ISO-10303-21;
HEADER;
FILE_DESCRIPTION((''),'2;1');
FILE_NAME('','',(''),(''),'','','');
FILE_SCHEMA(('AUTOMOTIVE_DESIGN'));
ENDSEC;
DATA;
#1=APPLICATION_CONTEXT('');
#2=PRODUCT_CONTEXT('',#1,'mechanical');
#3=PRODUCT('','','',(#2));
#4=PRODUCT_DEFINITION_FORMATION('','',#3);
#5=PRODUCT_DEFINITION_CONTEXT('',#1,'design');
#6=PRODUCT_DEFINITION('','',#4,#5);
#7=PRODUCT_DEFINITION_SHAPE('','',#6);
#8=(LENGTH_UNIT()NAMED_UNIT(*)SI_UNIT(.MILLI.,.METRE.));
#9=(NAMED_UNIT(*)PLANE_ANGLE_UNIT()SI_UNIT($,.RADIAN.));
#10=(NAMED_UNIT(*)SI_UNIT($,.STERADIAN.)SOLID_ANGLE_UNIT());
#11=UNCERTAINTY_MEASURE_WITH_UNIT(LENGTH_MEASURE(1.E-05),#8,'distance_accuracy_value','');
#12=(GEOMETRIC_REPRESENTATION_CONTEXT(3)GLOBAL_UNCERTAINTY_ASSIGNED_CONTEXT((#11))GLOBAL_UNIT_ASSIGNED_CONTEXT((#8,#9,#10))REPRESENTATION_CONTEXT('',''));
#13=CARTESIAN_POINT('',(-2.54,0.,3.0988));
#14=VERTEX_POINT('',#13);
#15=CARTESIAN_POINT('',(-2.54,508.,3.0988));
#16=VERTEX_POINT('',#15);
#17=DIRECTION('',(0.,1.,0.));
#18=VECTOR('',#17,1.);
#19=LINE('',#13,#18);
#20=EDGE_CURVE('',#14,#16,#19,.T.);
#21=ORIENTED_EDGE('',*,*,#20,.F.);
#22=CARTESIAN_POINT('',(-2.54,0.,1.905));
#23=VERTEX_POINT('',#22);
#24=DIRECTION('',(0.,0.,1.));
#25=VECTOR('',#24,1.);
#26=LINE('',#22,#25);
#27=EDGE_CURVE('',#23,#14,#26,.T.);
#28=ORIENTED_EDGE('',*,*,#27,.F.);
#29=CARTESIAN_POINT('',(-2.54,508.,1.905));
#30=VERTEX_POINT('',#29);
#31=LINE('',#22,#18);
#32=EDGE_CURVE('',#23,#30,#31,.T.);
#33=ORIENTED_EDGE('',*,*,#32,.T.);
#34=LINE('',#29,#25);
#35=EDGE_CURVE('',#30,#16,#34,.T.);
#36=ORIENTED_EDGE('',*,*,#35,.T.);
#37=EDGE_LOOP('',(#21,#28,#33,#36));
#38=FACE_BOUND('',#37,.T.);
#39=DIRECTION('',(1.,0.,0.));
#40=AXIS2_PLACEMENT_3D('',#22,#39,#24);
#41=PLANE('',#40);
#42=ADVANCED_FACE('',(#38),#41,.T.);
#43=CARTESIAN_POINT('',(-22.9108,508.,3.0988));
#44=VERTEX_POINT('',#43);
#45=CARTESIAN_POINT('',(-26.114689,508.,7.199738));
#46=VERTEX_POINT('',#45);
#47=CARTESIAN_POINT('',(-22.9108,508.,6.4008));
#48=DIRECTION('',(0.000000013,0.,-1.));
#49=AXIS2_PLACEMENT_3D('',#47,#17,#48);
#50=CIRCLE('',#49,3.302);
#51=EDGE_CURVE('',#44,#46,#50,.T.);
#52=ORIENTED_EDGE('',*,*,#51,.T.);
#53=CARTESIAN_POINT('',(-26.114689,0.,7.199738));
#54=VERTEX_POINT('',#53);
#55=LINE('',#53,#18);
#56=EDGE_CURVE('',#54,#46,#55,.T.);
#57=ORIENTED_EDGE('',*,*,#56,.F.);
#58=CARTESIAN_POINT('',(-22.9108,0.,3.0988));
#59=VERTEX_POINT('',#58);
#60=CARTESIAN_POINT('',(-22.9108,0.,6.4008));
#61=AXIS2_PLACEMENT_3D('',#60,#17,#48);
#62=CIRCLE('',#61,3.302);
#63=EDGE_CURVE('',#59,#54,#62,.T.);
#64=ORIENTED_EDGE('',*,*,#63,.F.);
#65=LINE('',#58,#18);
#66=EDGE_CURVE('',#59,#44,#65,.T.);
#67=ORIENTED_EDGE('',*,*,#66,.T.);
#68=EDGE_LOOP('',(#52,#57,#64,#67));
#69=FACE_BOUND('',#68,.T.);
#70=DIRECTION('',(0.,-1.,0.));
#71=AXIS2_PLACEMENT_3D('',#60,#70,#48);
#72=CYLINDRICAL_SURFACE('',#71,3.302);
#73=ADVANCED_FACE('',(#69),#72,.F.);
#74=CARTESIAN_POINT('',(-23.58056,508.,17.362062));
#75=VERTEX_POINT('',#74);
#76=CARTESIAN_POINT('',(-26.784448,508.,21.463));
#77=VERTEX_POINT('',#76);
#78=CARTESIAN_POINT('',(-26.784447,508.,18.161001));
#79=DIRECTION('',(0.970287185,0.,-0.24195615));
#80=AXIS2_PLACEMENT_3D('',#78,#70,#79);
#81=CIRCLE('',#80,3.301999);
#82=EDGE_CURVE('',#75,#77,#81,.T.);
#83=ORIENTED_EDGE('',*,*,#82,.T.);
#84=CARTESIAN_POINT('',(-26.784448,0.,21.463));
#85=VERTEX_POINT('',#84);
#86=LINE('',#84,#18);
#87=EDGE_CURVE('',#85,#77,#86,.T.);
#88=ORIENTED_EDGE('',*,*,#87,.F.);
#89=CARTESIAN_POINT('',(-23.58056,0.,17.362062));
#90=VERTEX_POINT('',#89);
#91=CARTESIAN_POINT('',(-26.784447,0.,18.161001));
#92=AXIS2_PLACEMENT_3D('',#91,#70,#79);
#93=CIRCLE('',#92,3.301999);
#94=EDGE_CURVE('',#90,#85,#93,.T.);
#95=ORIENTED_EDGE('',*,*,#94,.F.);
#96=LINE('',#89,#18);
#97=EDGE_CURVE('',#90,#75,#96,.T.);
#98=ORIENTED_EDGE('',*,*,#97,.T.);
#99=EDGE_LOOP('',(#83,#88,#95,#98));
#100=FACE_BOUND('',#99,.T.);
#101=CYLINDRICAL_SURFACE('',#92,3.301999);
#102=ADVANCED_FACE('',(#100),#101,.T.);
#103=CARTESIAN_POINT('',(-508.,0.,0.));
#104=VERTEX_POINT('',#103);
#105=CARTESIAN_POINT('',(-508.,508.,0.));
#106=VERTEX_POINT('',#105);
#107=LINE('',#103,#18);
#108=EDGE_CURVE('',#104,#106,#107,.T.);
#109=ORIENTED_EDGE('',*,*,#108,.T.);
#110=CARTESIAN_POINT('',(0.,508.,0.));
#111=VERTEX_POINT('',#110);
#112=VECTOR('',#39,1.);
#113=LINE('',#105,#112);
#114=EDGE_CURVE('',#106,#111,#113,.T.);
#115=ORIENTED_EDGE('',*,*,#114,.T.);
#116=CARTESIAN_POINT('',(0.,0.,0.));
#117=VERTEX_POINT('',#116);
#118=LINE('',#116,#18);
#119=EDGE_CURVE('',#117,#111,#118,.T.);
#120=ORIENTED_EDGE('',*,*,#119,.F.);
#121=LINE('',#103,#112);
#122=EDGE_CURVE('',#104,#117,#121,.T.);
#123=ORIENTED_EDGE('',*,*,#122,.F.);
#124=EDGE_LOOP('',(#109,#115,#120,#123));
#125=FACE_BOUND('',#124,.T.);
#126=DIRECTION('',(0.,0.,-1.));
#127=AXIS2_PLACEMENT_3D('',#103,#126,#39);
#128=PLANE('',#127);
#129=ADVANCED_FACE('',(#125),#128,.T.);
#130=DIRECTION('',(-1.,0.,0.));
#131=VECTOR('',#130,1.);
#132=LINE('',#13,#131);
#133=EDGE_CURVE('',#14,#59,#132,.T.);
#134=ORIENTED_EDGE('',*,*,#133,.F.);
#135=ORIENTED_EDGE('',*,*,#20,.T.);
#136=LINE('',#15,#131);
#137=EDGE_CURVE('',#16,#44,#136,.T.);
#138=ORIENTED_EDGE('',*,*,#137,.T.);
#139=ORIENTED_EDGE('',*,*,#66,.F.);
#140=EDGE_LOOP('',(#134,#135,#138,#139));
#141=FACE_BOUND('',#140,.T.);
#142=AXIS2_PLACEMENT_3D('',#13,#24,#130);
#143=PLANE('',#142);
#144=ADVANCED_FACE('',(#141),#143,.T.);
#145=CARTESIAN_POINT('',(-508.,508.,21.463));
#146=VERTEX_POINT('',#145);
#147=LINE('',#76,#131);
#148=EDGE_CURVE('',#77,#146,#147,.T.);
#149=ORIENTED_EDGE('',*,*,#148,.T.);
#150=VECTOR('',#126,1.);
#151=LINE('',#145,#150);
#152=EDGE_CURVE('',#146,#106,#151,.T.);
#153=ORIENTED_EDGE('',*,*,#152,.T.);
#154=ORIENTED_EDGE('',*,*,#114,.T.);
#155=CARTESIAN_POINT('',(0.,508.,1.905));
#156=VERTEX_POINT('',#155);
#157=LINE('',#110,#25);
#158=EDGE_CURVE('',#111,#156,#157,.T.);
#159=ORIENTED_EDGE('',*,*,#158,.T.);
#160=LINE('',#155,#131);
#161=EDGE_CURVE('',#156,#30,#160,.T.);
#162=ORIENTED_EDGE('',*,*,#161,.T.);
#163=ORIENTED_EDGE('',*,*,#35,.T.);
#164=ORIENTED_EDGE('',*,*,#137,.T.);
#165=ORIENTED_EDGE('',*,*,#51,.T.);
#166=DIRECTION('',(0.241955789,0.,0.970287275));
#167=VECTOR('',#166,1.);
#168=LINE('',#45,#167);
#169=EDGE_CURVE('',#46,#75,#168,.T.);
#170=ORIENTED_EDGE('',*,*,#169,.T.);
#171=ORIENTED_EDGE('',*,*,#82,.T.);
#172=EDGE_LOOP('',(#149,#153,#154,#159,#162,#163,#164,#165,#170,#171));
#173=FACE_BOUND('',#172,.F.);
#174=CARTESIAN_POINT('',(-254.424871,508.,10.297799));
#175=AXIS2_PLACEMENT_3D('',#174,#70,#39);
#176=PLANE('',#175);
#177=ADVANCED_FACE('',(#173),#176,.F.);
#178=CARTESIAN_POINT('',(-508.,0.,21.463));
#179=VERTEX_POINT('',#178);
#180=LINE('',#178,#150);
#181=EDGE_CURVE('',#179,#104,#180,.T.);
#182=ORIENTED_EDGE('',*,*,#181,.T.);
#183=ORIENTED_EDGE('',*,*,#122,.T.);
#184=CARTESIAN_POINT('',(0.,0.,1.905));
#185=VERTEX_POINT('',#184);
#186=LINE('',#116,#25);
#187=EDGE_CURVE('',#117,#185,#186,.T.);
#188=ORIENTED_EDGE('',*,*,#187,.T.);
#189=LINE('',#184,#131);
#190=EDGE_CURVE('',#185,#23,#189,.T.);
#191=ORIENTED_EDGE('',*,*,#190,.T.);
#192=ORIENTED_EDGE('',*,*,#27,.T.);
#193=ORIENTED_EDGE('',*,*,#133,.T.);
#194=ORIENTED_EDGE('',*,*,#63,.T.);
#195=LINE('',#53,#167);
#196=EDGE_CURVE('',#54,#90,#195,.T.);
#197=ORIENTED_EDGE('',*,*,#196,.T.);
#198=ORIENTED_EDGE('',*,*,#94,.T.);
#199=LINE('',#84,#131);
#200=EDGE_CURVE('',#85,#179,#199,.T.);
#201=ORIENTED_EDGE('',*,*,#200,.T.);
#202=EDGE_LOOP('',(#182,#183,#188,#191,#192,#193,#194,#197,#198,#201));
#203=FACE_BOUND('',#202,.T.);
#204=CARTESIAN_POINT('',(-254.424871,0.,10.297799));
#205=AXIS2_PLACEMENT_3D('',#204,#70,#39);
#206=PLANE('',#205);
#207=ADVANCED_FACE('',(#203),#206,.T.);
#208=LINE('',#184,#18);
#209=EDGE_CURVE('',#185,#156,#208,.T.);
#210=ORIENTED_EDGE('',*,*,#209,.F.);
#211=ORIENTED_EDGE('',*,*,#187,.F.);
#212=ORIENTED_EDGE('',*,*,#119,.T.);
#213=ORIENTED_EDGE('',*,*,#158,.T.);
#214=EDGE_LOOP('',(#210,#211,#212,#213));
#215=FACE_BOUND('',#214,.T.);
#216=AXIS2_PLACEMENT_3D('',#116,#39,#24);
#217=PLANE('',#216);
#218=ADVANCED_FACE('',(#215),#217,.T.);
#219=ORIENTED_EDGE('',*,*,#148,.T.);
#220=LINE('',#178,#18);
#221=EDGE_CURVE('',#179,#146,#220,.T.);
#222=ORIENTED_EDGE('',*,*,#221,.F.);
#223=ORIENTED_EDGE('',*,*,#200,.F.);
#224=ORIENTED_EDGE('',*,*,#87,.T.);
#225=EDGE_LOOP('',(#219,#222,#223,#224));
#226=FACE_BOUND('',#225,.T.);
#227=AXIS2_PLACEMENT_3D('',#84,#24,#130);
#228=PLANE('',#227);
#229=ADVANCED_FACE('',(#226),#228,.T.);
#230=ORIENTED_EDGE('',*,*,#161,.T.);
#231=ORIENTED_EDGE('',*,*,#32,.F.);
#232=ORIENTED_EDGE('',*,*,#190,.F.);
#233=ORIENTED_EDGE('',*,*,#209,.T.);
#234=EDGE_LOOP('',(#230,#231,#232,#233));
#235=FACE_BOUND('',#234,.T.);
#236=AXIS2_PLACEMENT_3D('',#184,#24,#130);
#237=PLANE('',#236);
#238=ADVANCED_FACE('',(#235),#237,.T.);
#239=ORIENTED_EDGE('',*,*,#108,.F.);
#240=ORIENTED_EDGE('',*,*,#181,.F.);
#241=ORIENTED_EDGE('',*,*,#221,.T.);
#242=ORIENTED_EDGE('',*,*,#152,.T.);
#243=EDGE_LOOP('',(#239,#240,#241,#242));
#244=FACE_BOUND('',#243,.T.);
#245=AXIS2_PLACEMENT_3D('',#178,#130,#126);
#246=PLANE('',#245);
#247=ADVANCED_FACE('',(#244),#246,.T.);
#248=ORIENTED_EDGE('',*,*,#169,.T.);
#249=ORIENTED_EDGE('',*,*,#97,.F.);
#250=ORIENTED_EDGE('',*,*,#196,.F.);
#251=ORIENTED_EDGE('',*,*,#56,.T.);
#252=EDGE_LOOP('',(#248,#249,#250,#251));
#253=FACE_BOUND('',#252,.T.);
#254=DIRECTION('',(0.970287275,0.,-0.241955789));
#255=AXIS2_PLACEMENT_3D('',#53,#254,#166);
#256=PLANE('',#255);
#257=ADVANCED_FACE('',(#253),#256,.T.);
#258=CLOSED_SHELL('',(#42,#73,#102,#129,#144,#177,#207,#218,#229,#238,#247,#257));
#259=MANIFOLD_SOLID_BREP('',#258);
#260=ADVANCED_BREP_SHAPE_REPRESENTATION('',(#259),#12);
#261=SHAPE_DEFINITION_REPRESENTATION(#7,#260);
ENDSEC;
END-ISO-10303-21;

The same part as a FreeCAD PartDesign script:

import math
import FreeCAD as App
import Part
import Sketcher
from FreeCAD import Vector
Q = App.Units.Quantity

doc = App.newDocument("Part")
body = doc.addObject("PartDesign::Body", "Body")

sketch1 = body.newObject("Sketcher::SketchObject", "Sketch")
sketch1.AttachmentSupport = (doc.getObject("XZ_Plane"), [""])
sketch1.MapMode = "FlatFace"
sketch1.addGeometry(Part.LineSegment(Vector(-508, 0, 0), Vector(0, 0, 0)), False)
sketch1.addGeometry(Part.LineSegment(Vector(0, 0, 0), Vector(0, 1.9, 0)), False)
sketch1.addGeometry(Part.LineSegment(Vector(0, 1.9, 0), Vector(-2.5, 1.9, 0)), False)
sketch1.addGeometry(Part.LineSegment(Vector(-2.5, 1.9, 0), Vector(-2.5, 3.1, 0)), False)
sketch1.addGeometry(Part.LineSegment(Vector(-2.5, 3.1, 0), Vector(-22.9, 3.1, 0)), False)
sketch1.addGeometry(Part.ArcOfCircle(Part.Circle(Vector(-22.9, 6.4, 0), Vector(0, 0, 1), 3.3), math.radians(166), math.radians(270)), False)
sketch1.addGeometry(Part.LineSegment(Vector(-26.1, 7.2, 0), Vector(-23.6, 17.4, 0)), False)
sketch1.addGeometry(Part.ArcOfCircle(Part.Circle(Vector(-26.8, 18.2, 0), Vector(0, 0, 1), 3.3), math.radians(-14), math.radians(90)), False)
sketch1.addGeometry(Part.LineSegment(Vector(-26.8, 21.5, 0), Vector(-508, 21.5, 0)), False)
sketch1.addGeometry(Part.LineSegment(Vector(-508, 21.5, 0), Vector(-508, 0, 0)), False)
sketch1.addConstraint(Sketcher.Constraint("Coincident", 0, 2, 1, 1))
sketch1.addConstraint(Sketcher.Constraint("Coincident", 1, 2, 2, 1))
sketch1.addConstraint(Sketcher.Constraint("Coincident", 2, 2, 3, 1))
sketch1.addConstraint(Sketcher.Constraint("Coincident", 3, 2, 4, 1))
sketch1.addConstraint(Sketcher.Constraint("Tangent", 4, 2, 5, 2))
sketch1.addConstraint(Sketcher.Constraint("Tangent", 5, 1, 6, 1))
sketch1.addConstraint(Sketcher.Constraint("Tangent", 6, 2, 7, 1))
sketch1.addConstraint(Sketcher.Constraint("Tangent", 7, 2, 8, 1))
sketch1.addConstraint(Sketcher.Constraint("Coincident", 8, 2, 9, 1))
sketch1.addConstraint(Sketcher.Constraint("Coincident", 9, 2, 0, 1))
sketch1.addConstraint(Sketcher.Constraint("Horizontal", 0))
sketch1.addConstraint(Sketcher.Constraint("Vertical", 1))
sketch1.addConstraint(Sketcher.Constraint("Horizontal", 2))
sketch1.addConstraint(Sketcher.Constraint("Vertical", 3))
sketch1.addConstraint(Sketcher.Constraint("Horizontal", 4))
sketch1.addConstraint(Sketcher.Constraint("Horizontal", 8))
sketch1.addConstraint(Sketcher.Constraint("Vertical", 9))
sketch1.addConstraint(Sketcher.Constraint("Coincident", 0, 2, -1, 1))
sketch1.addConstraint(Sketcher.Constraint("Equal", 5, 7))
sketch1.addConstraint(Sketcher.Constraint("DistanceX", 0, 1, 0, 2, Q("20 in")))
sketch1.addConstraint(Sketcher.Constraint("Radius", 5, Q("0.13 in")))
sketch1.addConstraint(Sketcher.Constraint("DistanceX", 2, 2, 2, 1, Q("0.1 in")))
sketch1.addConstraint(Sketcher.Constraint("DistanceX", 4, 2, 4, 1, Q("0.802 in")))
sketch1.addConstraint(Sketcher.Constraint("DistanceY", 1, 1, 1, 2, Q("0.075 in")))
sketch1.addConstraint(Sketcher.Constraint("DistanceY", 3, 1, 3, 2, Q("0.047 in")))
sketch1.addConstraint(Sketcher.Constraint("DistanceY", 9, 2, 9, 1, Q("0.845 in")))
sketch1.addConstraint(Sketcher.Constraint("DistanceX", 8, 2, 8, 1, 481.215552))
pad1 = body.newObject("PartDesign::Pad", "Pad")
pad1.Profile = sketch1
pad1.Length = Q("20 in")
pad1.Reversed = True

doc.recompute()
